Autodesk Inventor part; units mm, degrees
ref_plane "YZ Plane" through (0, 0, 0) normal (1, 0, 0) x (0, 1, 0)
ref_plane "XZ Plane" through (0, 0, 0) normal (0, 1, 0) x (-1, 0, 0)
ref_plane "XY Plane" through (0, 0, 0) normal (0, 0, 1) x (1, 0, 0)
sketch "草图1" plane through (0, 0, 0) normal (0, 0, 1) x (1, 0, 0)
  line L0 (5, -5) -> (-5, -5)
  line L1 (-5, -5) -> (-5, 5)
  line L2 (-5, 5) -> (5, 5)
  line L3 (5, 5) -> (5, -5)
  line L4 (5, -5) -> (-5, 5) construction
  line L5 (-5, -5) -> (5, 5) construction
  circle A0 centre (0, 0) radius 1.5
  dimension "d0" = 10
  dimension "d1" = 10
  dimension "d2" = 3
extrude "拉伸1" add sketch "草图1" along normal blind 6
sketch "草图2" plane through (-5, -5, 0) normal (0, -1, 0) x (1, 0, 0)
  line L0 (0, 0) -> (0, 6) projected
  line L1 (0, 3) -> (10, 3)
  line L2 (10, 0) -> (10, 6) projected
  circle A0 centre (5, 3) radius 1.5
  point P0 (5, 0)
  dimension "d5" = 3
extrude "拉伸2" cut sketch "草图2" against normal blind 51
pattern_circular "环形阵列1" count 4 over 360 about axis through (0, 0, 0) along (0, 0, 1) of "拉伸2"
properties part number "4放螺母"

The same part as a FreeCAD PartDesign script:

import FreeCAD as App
import Part
import Sketcher


def add_polygon(sketch, points):
    """Adds a closed chain of lines whose ends are joined by coincident constraints."""
    first, n = sketch.GeometryCount, len(points)
    for a, b in zip(points, points[1:] + points[:1]):
        sketch.addGeometry(Part.LineSegment(App.Vector(*a, 0), App.Vector(*b, 0)), False)
    for i in range(n):
        sketch.addConstraint(Sketcher.Constraint("Coincident", first + i, 2, first + (i + 1) % n, 1))

doc = App.newDocument("Part")
params = doc.addObject("Spreadsheet::Sheet", "Params")
for row, (alias, value) in enumerate([
    ("sketch1_diameter", "3 mm"),
    ("sketch1_width", "10 mm"),
    ("pad1_length", "6 mm"),
    ("sketch2_diameter", "3 mm"),
    ("pocket1_length", "51 mm"),
], start=1):
    params.set(f"A{row}", alias)
    params.set(f"B{row}", "=" + value)
    params.setAlias(f"B{row}", alias)

body = doc.addObject("PartDesign::Body", "Body")

# Sketch on XY plane
sketch1 = body.newObject("Sketcher::SketchObject", "Sketch")
sketch1.AttachmentSupport = (doc.getObject("XY_Plane"), [""])
sketch1.MapMode = "FlatFace"
add_polygon(sketch1, [(-5, -5), (5, -5), (5, 5), (-5, 5)])  # lines 0-3
sketch1.addGeometry(Part.Circle(App.Vector(0, 0, 0), App.Vector(0, 0, 1), 1.5), False)  # 4
sketch1.addConstraint([
    Sketcher.Constraint("Horizontal", 0),
    Sketcher.Constraint("Vertical", 1),
    Sketcher.Constraint("Horizontal", 2),
    Sketcher.Constraint("Vertical", 3),
    Sketcher.Constraint("Coincident", 4, 3, -1, 1),
    Sketcher.Constraint("Symmetric", 0, 2, 2, 2, -1, 1),
    Sketcher.Constraint("Equal", 2, 1),
    Sketcher.Constraint("Diameter", 4, 3.0),
    Sketcher.Constraint("DistanceX", 0, 1, 0, 2, 10.0),
])
sketch1.setExpression("Constraints[11]", "Params.sketch1_diameter")
sketch1.setExpression("Constraints[12]", "Params.sketch1_width")
pad1 = body.newObject("PartDesign::Pad", "Pad")
pad1.Profile = sketch1
pad1.setExpression("Length", "Params.pad1_length")

# Sketch on XZ plane
sketch2 = body.newObject("Sketcher::SketchObject", "Sketch001")
sketch2.AttachmentSupport = (doc.getObject("XZ_Plane"), [""])
sketch2.MapMode = "FlatFace"
sketch2.AttachmentOffset = App.Placement(App.Vector(0, 0, 5), App.Rotation())
sketch2.addGeometry(Part.Circle(App.Vector(0, 3, 0), App.Vector(0, 0, 1), 1.5), False)
sketch2.addConstraint([
    Sketcher.Constraint("PointOnObject", 0, 3, -2),
    Sketcher.Constraint("Diameter", 0, 3.0),
    Sketcher.Constraint("DistanceY", -1, 1, 0, 3, 3.0),
])
sketch2.setExpression("Constraints[1]", "Params.sketch2_diameter")
pocket1 = body.newObject("PartDesign::Pocket", "Pocket")
pocket1.Profile = sketch2
pocket1.setExpression("Length", "Params.pocket1_length")
doc.recompute()

polarpattern = body.newObject("PartDesign::PolarPattern", "PolarPattern")
polarpattern.Originals = [pocket1]
polarpattern.Axis = (doc.getObject("Z_Axis"), [""])
polarpattern.Angle = 360
polarpattern.Occurrences = 4
body.Tip = polarpattern

doc.recompute()
